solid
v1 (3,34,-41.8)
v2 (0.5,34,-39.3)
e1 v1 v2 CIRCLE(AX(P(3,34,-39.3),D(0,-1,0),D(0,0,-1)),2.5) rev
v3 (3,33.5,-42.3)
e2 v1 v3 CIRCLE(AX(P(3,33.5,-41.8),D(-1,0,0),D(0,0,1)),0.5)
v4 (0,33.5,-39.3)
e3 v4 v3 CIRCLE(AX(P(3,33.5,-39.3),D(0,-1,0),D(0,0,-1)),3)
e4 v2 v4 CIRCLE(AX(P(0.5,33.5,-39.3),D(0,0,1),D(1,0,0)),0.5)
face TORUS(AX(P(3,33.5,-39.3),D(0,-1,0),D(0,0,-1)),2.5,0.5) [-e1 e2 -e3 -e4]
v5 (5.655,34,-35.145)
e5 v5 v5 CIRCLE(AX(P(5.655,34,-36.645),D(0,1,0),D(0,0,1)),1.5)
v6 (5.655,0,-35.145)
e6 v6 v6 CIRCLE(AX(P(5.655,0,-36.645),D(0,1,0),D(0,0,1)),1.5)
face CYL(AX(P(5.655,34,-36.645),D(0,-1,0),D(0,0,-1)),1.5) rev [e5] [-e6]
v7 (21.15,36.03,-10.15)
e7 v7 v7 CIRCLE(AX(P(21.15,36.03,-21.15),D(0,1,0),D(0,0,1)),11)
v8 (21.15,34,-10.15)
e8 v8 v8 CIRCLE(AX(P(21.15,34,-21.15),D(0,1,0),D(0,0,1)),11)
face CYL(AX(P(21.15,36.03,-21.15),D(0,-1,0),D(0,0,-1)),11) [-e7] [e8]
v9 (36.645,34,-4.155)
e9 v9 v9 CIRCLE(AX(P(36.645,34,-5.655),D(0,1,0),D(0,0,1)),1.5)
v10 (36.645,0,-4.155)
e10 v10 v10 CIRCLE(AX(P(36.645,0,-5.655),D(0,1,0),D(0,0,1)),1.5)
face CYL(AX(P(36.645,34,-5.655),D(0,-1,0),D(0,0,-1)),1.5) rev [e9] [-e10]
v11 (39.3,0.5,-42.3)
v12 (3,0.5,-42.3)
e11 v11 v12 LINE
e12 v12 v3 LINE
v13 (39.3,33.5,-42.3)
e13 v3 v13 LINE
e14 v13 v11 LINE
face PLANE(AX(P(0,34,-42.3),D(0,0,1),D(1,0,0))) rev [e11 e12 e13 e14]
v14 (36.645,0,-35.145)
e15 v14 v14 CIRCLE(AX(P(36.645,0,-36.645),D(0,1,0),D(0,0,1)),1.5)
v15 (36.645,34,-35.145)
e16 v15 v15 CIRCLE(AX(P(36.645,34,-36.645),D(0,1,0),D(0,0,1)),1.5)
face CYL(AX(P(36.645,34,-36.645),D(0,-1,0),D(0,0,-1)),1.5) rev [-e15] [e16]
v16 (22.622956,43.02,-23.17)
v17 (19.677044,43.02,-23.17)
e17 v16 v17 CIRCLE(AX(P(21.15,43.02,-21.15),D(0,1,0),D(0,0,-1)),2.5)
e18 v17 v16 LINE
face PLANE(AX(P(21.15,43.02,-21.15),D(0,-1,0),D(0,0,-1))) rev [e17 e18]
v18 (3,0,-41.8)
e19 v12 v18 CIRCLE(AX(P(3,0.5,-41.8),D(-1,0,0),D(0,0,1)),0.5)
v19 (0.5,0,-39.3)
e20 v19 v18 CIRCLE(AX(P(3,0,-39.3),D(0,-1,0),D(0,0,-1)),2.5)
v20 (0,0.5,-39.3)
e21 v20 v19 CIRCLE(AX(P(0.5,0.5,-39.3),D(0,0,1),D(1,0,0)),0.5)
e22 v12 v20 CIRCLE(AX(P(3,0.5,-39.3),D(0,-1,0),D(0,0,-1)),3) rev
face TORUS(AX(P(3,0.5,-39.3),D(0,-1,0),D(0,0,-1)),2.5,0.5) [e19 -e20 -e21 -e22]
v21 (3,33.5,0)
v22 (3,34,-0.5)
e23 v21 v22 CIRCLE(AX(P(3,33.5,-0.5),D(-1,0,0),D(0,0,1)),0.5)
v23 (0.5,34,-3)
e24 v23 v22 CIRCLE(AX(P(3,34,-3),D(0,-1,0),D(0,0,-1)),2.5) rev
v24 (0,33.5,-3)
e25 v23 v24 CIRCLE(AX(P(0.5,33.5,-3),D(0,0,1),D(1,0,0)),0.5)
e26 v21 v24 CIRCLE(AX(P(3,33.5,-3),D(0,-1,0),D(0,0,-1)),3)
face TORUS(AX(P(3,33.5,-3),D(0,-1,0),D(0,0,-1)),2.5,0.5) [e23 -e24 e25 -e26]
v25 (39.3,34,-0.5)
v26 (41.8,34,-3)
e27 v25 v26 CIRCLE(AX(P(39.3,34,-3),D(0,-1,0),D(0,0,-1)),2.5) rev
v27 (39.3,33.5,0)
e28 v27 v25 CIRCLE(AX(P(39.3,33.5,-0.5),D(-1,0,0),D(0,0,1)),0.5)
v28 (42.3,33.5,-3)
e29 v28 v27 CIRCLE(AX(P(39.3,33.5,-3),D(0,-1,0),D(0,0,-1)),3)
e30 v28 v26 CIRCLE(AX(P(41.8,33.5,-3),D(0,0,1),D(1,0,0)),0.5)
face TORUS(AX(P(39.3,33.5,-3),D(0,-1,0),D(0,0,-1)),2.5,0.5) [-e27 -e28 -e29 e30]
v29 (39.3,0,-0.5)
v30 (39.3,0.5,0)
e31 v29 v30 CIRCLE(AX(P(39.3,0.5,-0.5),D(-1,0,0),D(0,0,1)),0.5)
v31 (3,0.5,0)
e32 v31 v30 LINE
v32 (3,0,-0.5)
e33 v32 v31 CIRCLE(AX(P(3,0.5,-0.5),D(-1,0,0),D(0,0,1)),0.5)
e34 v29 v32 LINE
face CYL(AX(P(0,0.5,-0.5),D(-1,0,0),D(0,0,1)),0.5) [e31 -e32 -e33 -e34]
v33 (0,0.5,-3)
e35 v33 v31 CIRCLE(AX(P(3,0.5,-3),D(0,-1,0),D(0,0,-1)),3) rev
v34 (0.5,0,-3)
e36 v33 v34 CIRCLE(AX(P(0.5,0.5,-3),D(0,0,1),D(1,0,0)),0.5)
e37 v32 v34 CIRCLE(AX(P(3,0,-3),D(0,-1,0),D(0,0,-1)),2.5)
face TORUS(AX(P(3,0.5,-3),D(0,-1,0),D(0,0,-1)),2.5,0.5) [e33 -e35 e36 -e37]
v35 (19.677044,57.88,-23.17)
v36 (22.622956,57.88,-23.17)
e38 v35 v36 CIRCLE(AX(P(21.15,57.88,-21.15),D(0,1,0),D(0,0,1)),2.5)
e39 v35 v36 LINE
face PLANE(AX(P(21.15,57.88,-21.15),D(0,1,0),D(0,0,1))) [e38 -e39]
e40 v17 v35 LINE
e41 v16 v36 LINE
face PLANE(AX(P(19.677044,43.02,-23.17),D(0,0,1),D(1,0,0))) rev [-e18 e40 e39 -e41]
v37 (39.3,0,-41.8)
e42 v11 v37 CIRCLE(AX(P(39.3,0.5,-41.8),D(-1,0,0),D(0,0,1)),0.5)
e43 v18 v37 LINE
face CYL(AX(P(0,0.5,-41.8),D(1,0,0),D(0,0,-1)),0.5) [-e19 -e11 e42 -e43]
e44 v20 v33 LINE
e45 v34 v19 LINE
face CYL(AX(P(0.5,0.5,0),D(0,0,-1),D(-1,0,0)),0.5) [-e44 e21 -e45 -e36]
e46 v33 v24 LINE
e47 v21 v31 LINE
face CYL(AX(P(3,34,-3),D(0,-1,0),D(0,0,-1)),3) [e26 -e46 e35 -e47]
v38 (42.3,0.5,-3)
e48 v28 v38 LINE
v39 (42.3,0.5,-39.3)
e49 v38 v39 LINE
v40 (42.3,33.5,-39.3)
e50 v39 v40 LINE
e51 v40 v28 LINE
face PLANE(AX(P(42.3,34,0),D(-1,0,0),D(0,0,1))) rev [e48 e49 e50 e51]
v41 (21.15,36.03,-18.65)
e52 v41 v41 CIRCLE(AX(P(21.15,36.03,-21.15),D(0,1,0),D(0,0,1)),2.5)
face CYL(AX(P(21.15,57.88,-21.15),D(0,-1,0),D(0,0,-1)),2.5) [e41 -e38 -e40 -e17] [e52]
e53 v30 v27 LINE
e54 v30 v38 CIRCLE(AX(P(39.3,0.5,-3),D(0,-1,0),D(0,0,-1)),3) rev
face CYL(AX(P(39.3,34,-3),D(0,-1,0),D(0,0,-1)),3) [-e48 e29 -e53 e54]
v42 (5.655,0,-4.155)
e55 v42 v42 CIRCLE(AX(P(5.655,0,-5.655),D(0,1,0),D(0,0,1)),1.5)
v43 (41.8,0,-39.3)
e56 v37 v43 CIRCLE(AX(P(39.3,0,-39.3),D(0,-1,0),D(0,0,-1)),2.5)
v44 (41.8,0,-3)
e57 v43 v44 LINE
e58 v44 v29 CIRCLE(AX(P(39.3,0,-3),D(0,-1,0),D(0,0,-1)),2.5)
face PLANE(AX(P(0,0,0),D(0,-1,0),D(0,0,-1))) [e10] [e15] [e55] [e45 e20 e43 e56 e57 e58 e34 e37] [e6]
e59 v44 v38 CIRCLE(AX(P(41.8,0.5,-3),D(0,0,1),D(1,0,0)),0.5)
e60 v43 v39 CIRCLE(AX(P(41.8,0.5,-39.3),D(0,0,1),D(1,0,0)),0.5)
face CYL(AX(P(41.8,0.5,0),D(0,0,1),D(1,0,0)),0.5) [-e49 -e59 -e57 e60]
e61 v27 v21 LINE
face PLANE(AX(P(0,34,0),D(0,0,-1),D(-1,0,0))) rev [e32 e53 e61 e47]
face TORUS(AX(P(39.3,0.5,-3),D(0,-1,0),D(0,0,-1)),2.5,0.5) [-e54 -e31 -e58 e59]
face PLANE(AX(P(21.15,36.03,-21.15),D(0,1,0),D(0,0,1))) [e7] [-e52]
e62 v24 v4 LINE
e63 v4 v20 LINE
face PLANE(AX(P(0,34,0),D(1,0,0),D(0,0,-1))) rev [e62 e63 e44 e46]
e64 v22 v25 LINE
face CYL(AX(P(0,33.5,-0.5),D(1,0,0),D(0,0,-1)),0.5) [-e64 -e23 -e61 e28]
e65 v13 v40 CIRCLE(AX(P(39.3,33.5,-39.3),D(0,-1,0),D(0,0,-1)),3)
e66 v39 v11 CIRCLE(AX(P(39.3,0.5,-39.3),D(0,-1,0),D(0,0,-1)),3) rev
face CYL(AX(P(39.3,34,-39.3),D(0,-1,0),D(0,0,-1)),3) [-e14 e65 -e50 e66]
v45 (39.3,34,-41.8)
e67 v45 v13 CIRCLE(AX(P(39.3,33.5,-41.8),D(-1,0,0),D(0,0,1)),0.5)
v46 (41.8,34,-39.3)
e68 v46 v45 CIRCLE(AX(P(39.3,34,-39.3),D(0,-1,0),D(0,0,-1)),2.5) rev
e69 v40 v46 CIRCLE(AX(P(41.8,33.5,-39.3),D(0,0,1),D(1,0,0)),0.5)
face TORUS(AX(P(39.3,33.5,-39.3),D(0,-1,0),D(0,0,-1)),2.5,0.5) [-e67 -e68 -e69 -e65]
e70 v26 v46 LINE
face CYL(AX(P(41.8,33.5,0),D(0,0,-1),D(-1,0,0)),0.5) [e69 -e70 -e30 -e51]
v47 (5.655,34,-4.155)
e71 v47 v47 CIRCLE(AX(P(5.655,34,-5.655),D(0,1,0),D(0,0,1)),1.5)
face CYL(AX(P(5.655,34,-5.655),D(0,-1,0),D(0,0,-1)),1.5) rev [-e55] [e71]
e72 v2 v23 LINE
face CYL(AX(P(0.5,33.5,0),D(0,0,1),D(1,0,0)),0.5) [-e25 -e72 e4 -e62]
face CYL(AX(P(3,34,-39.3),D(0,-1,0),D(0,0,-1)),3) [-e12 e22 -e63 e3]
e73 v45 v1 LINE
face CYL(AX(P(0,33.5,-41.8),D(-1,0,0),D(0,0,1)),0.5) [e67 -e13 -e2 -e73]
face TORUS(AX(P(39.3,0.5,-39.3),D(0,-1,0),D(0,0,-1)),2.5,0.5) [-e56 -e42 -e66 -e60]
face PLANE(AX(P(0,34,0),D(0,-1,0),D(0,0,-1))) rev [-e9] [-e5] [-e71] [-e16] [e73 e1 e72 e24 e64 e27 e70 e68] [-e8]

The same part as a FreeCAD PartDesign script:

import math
import FreeCAD as App
import Part
import Sketcher

V = App.Vector
Q = App.Units.Quantity


def edges_at(feature, points):
    """Names of the edges that pass closest to the given points."""
    edges = feature.Shape.Edges
    near = lambda p: min(range(len(edges)), key=lambda i: edges[i].distToShape(Part.Vertex(*p))[0])
    return sorted({f"Edge{near(p) + 1}" for p in points})


def add_polygon(sketch, points):
    """Adds a closed chain of lines whose ends are joined by coincident constraints."""
    first, n = sketch.GeometryCount, len(points)
    for a, b in zip(points, points[1:] + points[:1]):
        sketch.addGeometry(Part.LineSegment(App.Vector(*a, 0), App.Vector(*b, 0)), False)
    for i in range(n):
        sketch.addConstraint(Sketcher.Constraint("Coincident", first + i, 2, first + (i + 1) % n, 1))

doc = App.newDocument("Part")
body = doc.addObject("PartDesign::Body", "Body")

sketch1 = body.newObject("Sketcher::SketchObject", "Sketch")
sketch1.AttachmentSupport = (doc.getObject("XZ_Plane"), [""])
sketch1.MapMode = "FlatFace"
add_polygon(sketch1, [(0, -42.3), (0, 0), (42.3, 0), (42.3, -42.3)])
sketch1.addGeometry(Part.Circle(V(5.7, -5.7, 0), V(0, 0, 1), 1.5), False)
sketch1.addGeometry(Part.Circle(V(36.6, -5.7, 0), V(0, 0, 1), 1.5), False)
sketch1.addGeometry(Part.Circle(V(5.7, -36.6, 0), V(0, 0, 1), 1.5), False)
sketch1.addGeometry(Part.Circle(V(36.6, -36.6, 0), V(0, 0, 1), 1.5), False)
sketch1.addConstraint([
    Sketcher.Constraint("Vertical", 0),
    Sketcher.Constraint("Horizontal", 1),
    Sketcher.Constraint("Vertical", 2),
    Sketcher.Constraint("Horizontal", 3),
    Sketcher.Constraint("Coincident", 0, 2, -1, 1),
    Sketcher.Constraint("Equal", 4, 5),
    Sketcher.Constraint("Equal", 5, 6),
    Sketcher.Constraint("Equal", 6, 7),
    Sketcher.Constraint("Horizontal", 4, 3, 5, 3),
    Sketcher.Constraint("Horizontal", 6, 3, 7, 3),
    Sketcher.Constraint("Vertical", 4, 3, 6, 3),
    Sketcher.Constraint("Vertical", 5, 3, 7, 3),
    Sketcher.Constraint("Equal", 3, 0),
    Sketcher.Constraint("Diameter", 4, Q("3 mm")),
    Sketcher.Constraint("DistanceX", 1, 1, 1, 2, Q("42.3 mm")),
    Sketcher.Constraint("DistanceX", 4, 3, 5, 3, Q("30.99 mm")),
    Sketcher.Constraint("DistanceY", 6, 3, 4, 3, Q("30.99 mm")),
    Sketcher.Constraint("DistanceX", -1, 1, 4, 3, Q("5.655 mm")),
    Sketcher.Constraint("DistanceY", 4, 3, -1, 1, Q("5.655 mm")),
])
pad1 = body.newObject("PartDesign::Pad", "Pad")
pad1.Profile = sketch1
pad1.Length = 34
pad1.Reversed = True

sketch2 = body.newObject("Sketcher::SketchObject", "Sketch001")
sketch2.AttachmentSupport = (doc.getObject("XZ_Plane"), [""])
sketch2.MapMode = "FlatFace"
sketch2.AttachmentOffset = App.Placement(V(0, 0, -34), App.Rotation())
sketch2.addGeometry(Part.Circle(V(21, -21, 0), V(0, 0, 1), 11), False)
sketch2.addConstraint([
    Sketcher.Constraint("Diameter", 0, Q("22 mm")),
    Sketcher.Constraint("DistanceX", -1, 1, 0, 3, Q("21.15 mm")),
    Sketcher.Constraint("DistanceY", 0, 3, -1, 1, Q("21.15 mm")),
])
pad2 = body.newObject("PartDesign::Pad", "Pad001")
pad2.Profile = sketch2
pad2.Length = 2.03
pad2.Reversed = True

sketch3 = body.newObject("Sketcher::SketchObject", "Sketch002")
sketch3.AttachmentSupport = (doc.getObject("XZ_Plane"), [""])
sketch3.MapMode = "FlatFace"
sketch3.AttachmentOffset = App.Placement(V(0, 0, -36.03), App.Rotation())
sketch3.addGeometry(Part.Circle(V(21.1, -21.1, 0), V(0, 0, 1), 2.5), False)
sketch3.addConstraint([
    Sketcher.Constraint("Diameter", 0, Q("5 mm")),
    Sketcher.Constraint("DistanceX", -1, 1, 0, 3, Q("21.15 mm")),
    Sketcher.Constraint("DistanceY", 0, 3, -1, 1, Q("21.15 mm")),
])
pad3 = body.newObject("PartDesign::Pad", "Pad002")
pad3.Profile = sketch3
pad3.Length = 21.85
pad3.Reversed = True

sketch4 = body.newObject("Sketcher::SketchObject", "Sketch003")
sketch4.AttachmentSupport = (doc.getObject("XZ_Plane"), [""])
sketch4.MapMode = "FlatFace"
sketch4.AttachmentOffset = App.Placement(V(0, 0, -43.02), App.Rotation())
sketch4.addGeometry([
    Part.LineSegment(V(19.7, -23.2, 0), V(22.6, -23.2, 0)),
    Part.ArcOfCircle(Part.Circle(V(21.1, -21.1, 0), V(0, 0, 1), 2.5), math.radians(-126), math.radians(-54)),
], False)
sketch4.addConstraint([
    Sketcher.Constraint("Coincident", 0, 1, 1, 1),
    Sketcher.Constraint("Coincident", 1, 2, 0, 2),
    Sketcher.Constraint("Horizontal", 0),
    Sketcher.Constraint("Radius", 1, Q("2.5 mm")),
    Sketcher.Constraint("DistanceX", -1, 1, 1, 3, Q("21.15 mm")),
    Sketcher.Constraint("DistanceY", 1, 3, -1, 1, Q("21.15 mm")),
    Sketcher.Constraint("DistanceY", 0, 1, -1, 1, Q("23.17 mm")),
])
pocket1 = body.newObject("PartDesign::Pocket", "Pocket")
pocket1.Profile = sketch4
pocket1.Length = 14.86
doc.recompute()

fillet = body.newObject("PartDesign::Fillet", "Fillet")
fillet.Base = (pocket1, edges_at(pocket1, [
    (0, 17, -42.3),
    (42.3, 17, -42.3),
    (42.3, 17, 0),
    (0, 17, 0),
]))
fillet.Radius = 3
doc.recompute()

fillet2 = body.newObject("PartDesign::Fillet", "Fillet001")
fillet2.Base = (fillet, edges_at(fillet, [
    (0, 0, -21.15),
    (0, 34, -21.15),
    (21.15, 0, -42.3),
    (42.3, 0, -21.15),
    (21.15, 0, 0),
    (0.879, 0, -0.879),
    (41.421, 0, -0.879),
    (41.421, 0, -41.421),
    (0.879, 0, -41.421),
    (21.15, 34, -42.3),
    (21.15, 34, 0),
    (42.3, 34, -21.15),
    (0.879, 34, -0.879),
    (41.421, 34, -0.879),
    (41.421, 34, -41.421),
    (0.879, 34, -41.421),
]))
fillet2.Radius = 0.5

doc.recompute()
